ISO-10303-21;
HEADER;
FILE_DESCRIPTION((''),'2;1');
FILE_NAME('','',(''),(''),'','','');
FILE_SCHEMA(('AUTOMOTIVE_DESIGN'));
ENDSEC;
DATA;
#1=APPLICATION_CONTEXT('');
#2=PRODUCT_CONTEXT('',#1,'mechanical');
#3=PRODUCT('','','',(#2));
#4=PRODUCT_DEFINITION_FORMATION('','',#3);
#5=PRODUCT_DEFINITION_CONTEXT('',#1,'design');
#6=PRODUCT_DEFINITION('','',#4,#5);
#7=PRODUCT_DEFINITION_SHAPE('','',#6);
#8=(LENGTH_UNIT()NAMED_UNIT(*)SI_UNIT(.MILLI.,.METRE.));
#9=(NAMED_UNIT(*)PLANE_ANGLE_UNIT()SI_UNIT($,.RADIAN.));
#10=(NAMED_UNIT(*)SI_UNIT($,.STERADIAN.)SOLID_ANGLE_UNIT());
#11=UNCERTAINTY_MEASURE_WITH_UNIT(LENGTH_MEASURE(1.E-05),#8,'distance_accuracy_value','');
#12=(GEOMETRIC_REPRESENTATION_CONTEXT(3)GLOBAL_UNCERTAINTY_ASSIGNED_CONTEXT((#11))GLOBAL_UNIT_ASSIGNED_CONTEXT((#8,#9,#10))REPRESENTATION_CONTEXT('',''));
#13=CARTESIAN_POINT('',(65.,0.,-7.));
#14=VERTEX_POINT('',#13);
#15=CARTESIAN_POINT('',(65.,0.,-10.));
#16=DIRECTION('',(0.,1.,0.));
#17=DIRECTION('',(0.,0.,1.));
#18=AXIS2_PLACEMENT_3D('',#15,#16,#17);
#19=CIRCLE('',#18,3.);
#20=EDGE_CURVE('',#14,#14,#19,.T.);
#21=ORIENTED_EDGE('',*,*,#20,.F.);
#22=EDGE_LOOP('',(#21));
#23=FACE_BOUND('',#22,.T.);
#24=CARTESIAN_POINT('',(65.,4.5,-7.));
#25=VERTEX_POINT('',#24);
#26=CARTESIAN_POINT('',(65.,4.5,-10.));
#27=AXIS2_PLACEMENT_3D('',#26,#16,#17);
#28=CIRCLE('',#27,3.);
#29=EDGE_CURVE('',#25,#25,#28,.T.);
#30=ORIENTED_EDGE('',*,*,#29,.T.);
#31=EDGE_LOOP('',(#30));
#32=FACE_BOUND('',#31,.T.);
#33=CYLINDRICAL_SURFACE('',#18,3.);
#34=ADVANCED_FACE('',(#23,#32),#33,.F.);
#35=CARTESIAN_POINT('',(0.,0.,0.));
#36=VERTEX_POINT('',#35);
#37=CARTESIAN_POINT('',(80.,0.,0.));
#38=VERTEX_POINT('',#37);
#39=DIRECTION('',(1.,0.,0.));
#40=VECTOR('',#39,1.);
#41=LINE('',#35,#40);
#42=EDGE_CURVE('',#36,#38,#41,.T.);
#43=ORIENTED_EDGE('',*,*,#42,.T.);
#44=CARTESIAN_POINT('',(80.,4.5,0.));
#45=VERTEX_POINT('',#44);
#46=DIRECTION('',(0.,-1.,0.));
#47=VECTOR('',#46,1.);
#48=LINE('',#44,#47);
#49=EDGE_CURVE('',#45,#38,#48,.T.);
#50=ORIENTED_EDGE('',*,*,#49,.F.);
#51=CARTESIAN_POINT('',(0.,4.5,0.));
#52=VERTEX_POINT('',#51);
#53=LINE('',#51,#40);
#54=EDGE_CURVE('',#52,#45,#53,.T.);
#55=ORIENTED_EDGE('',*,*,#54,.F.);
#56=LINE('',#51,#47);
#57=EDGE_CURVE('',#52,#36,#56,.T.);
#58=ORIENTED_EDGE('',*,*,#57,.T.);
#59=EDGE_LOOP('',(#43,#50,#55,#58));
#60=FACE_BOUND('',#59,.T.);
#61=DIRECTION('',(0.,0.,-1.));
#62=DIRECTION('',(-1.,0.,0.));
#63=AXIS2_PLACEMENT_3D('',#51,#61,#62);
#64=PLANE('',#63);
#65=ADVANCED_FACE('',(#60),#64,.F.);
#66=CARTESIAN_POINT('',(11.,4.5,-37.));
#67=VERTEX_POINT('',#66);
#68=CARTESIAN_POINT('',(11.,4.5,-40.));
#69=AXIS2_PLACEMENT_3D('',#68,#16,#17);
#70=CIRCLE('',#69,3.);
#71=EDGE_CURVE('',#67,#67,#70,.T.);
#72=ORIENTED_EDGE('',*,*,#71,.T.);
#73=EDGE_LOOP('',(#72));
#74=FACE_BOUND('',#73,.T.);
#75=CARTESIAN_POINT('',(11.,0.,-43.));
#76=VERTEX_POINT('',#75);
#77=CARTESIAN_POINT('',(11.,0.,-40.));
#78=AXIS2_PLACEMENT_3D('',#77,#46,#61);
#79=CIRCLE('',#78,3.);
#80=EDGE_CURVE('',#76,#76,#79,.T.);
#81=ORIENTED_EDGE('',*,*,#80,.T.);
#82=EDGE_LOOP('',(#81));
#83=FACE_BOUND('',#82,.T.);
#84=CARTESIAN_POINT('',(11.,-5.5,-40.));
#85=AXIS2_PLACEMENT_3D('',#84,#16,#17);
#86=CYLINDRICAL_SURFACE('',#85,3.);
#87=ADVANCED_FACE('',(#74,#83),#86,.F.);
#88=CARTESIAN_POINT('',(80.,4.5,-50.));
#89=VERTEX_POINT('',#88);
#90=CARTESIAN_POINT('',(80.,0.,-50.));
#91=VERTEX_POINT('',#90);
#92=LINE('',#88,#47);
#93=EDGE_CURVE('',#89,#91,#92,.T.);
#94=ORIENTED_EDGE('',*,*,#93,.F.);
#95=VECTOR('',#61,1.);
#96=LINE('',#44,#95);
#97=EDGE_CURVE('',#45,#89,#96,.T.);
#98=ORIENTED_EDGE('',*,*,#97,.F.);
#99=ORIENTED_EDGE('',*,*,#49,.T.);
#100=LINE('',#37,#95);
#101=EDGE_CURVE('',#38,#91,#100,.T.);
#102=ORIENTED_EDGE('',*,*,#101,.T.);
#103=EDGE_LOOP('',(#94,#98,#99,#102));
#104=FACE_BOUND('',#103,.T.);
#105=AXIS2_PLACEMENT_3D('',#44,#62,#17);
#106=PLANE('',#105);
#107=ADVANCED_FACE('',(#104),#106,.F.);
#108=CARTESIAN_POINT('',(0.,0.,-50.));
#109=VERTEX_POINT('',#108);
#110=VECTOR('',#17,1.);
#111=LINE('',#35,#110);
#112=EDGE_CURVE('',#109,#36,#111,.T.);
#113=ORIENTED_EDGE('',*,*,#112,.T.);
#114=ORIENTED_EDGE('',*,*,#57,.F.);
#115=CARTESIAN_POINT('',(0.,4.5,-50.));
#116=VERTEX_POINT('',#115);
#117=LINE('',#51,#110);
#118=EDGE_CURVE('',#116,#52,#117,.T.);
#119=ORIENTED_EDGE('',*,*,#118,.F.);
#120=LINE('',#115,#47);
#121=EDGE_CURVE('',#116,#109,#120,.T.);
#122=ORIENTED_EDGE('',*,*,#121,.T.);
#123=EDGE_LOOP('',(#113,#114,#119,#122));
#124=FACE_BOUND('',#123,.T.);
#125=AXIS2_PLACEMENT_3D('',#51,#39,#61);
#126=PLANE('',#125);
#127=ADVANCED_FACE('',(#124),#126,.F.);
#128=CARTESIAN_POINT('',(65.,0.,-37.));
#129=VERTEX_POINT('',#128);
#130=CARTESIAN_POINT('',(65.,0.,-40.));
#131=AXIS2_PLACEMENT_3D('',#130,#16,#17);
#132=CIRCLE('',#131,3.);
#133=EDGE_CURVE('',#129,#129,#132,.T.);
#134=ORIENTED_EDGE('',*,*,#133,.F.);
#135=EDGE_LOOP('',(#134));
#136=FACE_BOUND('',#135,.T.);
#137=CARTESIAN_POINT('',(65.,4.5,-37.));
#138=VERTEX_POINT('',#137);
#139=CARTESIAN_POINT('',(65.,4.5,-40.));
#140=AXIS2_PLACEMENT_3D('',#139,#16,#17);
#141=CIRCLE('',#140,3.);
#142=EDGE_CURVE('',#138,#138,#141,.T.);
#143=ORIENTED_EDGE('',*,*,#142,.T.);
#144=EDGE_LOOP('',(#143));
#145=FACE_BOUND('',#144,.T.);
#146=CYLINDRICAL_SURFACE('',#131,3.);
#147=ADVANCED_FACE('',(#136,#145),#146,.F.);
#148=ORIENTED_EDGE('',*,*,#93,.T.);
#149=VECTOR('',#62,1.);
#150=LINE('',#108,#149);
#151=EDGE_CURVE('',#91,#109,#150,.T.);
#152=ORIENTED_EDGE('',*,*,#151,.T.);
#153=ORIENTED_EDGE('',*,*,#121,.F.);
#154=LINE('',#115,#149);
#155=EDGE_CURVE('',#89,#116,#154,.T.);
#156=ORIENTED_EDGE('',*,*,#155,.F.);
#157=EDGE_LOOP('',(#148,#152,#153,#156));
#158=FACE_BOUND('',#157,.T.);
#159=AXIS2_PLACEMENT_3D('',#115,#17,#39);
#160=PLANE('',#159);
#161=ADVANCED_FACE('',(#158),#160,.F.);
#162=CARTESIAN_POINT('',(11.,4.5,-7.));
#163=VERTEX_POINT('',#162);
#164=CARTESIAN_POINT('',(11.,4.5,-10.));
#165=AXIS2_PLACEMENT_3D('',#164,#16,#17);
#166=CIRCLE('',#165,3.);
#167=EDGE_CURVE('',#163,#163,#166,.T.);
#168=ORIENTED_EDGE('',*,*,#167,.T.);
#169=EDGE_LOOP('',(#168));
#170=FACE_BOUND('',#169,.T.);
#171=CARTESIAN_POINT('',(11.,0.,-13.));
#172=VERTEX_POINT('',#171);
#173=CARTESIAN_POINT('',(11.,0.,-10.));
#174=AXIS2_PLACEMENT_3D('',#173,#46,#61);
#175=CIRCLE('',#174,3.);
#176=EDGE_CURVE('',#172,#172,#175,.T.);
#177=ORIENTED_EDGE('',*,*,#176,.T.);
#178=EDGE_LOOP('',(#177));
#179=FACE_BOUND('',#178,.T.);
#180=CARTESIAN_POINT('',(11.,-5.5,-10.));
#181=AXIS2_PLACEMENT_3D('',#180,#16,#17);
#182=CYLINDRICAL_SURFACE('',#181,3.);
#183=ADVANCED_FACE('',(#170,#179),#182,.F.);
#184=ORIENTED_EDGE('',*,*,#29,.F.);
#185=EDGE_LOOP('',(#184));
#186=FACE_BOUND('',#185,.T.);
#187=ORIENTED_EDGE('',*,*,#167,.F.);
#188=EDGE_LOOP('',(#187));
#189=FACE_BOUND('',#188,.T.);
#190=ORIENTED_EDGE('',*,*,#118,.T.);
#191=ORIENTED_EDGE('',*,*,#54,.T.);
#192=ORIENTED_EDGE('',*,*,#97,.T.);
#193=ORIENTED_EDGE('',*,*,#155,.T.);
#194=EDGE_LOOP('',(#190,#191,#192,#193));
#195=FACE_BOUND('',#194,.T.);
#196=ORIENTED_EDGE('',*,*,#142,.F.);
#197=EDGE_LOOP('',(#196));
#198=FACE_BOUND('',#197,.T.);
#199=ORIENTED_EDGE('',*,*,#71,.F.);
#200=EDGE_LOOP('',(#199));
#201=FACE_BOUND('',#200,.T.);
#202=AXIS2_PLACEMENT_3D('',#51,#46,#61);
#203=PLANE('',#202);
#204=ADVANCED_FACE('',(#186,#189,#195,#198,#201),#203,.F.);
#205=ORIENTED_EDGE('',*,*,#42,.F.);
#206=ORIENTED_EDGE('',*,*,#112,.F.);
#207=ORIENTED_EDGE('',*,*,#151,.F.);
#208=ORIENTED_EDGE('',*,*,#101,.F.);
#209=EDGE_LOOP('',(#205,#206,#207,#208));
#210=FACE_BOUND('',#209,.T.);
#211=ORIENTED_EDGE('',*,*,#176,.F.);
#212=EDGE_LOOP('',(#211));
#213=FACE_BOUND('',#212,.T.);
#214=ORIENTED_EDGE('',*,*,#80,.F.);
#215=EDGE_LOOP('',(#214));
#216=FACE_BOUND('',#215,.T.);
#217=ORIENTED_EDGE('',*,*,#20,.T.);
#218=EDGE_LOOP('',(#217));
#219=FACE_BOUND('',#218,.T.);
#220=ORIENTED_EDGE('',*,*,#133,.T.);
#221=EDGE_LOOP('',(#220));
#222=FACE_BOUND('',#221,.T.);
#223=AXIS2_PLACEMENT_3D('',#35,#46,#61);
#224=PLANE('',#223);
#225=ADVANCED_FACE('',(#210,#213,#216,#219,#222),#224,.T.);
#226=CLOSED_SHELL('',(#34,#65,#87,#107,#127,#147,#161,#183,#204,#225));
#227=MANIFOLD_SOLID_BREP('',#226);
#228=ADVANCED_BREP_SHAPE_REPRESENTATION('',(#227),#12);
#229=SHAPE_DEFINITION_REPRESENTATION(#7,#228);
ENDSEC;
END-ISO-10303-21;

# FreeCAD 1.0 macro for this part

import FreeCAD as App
import Part
import Sketcher

V = App.Vector

doc = App.newDocument("Part")
body = doc.addObject("PartDesign::Body", "Body")

sketch1 = doc.addObject("Sketcher::SketchObject", "Sketch")
body.addObject(sketch1)
sketch1.AttachmentSupport = (doc.XZ_Plane, [""])
sketch1.MapMode = "FlatFace"
sketch1.addGeometry(Part.LineSegment(V(0, -50, 0), V(0, 0, 0)), False)
sketch1.addGeometry(Part.LineSegment(V(0, 0, 0), V(80, 0, 0)), False)
sketch1.addGeometry(Part.LineSegment(V(80, 0, 0), V(80, -50, 0)), False)
sketch1.addGeometry(Part.LineSegment(V(80, -50, 0), V(0, -50, 0)), False)
sketch1.addConstraint(Sketcher.Constraint("Coincident", 0, 2, 1, 1))
sketch1.addConstraint(Sketcher.Constraint("Coincident", 1, 2, 2, 1))
sketch1.addConstraint(Sketcher.Constraint("Coincident", 2, 2, 3, 1))
sketch1.addConstraint(Sketcher.Constraint("Coincident", 3, 2, 0, 1))
sketch1.addConstraint(Sketcher.Constraint("Vertical", 0))
sketch1.addConstraint(Sketcher.Constraint("Horizontal", 1))
sketch1.addConstraint(Sketcher.Constraint("Vertical", 2))
sketch1.addConstraint(Sketcher.Constraint("Horizontal", 3))
sketch1.addConstraint(Sketcher.Constraint("Coincident", 0, 2, -1, 1))
sketch1.addConstraint(Sketcher.Constraint("DistanceX", 1, 1, 1, 2, 80.0))
sketch1.addConstraint(Sketcher.Constraint("DistanceY", 0, 1, 0, 2, 50.0))
pad1 = doc.addObject("PartDesign::Pad", "Pad")
body.addObject(pad1)
pad1.Profile = sketch1
pad1.Length = 4.5
pad1.Reversed = True

sketch2 = doc.addObject("Sketcher::SketchObject", "Sketch001")
body.addObject(sketch2)
sketch2.AttachmentSupport = (doc.XZ_Plane, [""])
sketch2.MapMode = "FlatFace"
sketch2.AttachmentOffset = App.Placement(V(0, 0, -4.5), App.Rotation())
sketch2.addGeometry(Part.Circle(V(65, -40, 0), V(0, 0, 1), 3), False)
sketch2.addGeometry(Part.Circle(V(65, -10, 0), V(0, 0, 1), 3), False)
sketch2.addConstraint(Sketcher.Constraint("Equal", 0, 1))
sketch2.addConstraint(Sketcher.Constraint("Vertical", 0, 3, 1, 3))
sketch2.addConstraint(Sketcher.Constraint("Diameter", 0, 6.0))
sketch2.addConstraint(Sketcher.Constraint("DistanceX", -1, 1, 0, 3, 65.0))
sketch2.addConstraint(Sketcher.Constraint("DistanceY", 0, 3, -1, 1, 40.0))
sketch2.addConstraint(Sketcher.Constraint("DistanceY", 1, 3, -1, 1, 10.0))
pocket1 = doc.addObject("PartDesign::Pocket", "Pocket")
body.addObject(pocket1)
pocket1.Profile = sketch2
pocket1.Length = 4.5
pocket1.Reversed = True

sketch3 = doc.addObject("Sketcher::SketchObject", "Sketch002")
body.addObject(sketch3)
sketch3.AttachmentSupport = (doc.XZ_Plane, [""])
sketch3.MapMode = "FlatFace"
sketch3.AttachmentOffset = App.Placement(V(0, 0, -4.5), App.Rotation())
sketch3.addGeometry(Part.Circle(V(11, -40, 0), V(0, 0, 1), 3), False)
sketch3.addGeometry(Part.Circle(V(11, -10, 0), V(0, 0, 1), 3), False)
sketch3.addConstraint(Sketcher.Constraint("Equal", 0, 1))
sketch3.addConstraint(Sketcher.Constraint("Vertical", 0, 3, 1, 3))
sketch3.addConstraint(Sketcher.Constraint("Diameter", 0, 6.0))
sketch3.addConstraint(Sketcher.Constraint("DistanceX", -1, 1, 0, 3, 11.0))
sketch3.addConstraint(Sketcher.Constraint("DistanceY", 0, 3, -1, 1, 40.0))
sketch3.addConstraint(Sketcher.Constraint("DistanceY", 1, 3, -1, 1, 10.0))
pocket2 = doc.addObject("PartDesign::Pocket", "Pocket001")
body.addObject(pocket2)
pocket2.Profile = sketch3
pocket2.Length = 10
pocket2.Reversed = True

doc.recompute()
